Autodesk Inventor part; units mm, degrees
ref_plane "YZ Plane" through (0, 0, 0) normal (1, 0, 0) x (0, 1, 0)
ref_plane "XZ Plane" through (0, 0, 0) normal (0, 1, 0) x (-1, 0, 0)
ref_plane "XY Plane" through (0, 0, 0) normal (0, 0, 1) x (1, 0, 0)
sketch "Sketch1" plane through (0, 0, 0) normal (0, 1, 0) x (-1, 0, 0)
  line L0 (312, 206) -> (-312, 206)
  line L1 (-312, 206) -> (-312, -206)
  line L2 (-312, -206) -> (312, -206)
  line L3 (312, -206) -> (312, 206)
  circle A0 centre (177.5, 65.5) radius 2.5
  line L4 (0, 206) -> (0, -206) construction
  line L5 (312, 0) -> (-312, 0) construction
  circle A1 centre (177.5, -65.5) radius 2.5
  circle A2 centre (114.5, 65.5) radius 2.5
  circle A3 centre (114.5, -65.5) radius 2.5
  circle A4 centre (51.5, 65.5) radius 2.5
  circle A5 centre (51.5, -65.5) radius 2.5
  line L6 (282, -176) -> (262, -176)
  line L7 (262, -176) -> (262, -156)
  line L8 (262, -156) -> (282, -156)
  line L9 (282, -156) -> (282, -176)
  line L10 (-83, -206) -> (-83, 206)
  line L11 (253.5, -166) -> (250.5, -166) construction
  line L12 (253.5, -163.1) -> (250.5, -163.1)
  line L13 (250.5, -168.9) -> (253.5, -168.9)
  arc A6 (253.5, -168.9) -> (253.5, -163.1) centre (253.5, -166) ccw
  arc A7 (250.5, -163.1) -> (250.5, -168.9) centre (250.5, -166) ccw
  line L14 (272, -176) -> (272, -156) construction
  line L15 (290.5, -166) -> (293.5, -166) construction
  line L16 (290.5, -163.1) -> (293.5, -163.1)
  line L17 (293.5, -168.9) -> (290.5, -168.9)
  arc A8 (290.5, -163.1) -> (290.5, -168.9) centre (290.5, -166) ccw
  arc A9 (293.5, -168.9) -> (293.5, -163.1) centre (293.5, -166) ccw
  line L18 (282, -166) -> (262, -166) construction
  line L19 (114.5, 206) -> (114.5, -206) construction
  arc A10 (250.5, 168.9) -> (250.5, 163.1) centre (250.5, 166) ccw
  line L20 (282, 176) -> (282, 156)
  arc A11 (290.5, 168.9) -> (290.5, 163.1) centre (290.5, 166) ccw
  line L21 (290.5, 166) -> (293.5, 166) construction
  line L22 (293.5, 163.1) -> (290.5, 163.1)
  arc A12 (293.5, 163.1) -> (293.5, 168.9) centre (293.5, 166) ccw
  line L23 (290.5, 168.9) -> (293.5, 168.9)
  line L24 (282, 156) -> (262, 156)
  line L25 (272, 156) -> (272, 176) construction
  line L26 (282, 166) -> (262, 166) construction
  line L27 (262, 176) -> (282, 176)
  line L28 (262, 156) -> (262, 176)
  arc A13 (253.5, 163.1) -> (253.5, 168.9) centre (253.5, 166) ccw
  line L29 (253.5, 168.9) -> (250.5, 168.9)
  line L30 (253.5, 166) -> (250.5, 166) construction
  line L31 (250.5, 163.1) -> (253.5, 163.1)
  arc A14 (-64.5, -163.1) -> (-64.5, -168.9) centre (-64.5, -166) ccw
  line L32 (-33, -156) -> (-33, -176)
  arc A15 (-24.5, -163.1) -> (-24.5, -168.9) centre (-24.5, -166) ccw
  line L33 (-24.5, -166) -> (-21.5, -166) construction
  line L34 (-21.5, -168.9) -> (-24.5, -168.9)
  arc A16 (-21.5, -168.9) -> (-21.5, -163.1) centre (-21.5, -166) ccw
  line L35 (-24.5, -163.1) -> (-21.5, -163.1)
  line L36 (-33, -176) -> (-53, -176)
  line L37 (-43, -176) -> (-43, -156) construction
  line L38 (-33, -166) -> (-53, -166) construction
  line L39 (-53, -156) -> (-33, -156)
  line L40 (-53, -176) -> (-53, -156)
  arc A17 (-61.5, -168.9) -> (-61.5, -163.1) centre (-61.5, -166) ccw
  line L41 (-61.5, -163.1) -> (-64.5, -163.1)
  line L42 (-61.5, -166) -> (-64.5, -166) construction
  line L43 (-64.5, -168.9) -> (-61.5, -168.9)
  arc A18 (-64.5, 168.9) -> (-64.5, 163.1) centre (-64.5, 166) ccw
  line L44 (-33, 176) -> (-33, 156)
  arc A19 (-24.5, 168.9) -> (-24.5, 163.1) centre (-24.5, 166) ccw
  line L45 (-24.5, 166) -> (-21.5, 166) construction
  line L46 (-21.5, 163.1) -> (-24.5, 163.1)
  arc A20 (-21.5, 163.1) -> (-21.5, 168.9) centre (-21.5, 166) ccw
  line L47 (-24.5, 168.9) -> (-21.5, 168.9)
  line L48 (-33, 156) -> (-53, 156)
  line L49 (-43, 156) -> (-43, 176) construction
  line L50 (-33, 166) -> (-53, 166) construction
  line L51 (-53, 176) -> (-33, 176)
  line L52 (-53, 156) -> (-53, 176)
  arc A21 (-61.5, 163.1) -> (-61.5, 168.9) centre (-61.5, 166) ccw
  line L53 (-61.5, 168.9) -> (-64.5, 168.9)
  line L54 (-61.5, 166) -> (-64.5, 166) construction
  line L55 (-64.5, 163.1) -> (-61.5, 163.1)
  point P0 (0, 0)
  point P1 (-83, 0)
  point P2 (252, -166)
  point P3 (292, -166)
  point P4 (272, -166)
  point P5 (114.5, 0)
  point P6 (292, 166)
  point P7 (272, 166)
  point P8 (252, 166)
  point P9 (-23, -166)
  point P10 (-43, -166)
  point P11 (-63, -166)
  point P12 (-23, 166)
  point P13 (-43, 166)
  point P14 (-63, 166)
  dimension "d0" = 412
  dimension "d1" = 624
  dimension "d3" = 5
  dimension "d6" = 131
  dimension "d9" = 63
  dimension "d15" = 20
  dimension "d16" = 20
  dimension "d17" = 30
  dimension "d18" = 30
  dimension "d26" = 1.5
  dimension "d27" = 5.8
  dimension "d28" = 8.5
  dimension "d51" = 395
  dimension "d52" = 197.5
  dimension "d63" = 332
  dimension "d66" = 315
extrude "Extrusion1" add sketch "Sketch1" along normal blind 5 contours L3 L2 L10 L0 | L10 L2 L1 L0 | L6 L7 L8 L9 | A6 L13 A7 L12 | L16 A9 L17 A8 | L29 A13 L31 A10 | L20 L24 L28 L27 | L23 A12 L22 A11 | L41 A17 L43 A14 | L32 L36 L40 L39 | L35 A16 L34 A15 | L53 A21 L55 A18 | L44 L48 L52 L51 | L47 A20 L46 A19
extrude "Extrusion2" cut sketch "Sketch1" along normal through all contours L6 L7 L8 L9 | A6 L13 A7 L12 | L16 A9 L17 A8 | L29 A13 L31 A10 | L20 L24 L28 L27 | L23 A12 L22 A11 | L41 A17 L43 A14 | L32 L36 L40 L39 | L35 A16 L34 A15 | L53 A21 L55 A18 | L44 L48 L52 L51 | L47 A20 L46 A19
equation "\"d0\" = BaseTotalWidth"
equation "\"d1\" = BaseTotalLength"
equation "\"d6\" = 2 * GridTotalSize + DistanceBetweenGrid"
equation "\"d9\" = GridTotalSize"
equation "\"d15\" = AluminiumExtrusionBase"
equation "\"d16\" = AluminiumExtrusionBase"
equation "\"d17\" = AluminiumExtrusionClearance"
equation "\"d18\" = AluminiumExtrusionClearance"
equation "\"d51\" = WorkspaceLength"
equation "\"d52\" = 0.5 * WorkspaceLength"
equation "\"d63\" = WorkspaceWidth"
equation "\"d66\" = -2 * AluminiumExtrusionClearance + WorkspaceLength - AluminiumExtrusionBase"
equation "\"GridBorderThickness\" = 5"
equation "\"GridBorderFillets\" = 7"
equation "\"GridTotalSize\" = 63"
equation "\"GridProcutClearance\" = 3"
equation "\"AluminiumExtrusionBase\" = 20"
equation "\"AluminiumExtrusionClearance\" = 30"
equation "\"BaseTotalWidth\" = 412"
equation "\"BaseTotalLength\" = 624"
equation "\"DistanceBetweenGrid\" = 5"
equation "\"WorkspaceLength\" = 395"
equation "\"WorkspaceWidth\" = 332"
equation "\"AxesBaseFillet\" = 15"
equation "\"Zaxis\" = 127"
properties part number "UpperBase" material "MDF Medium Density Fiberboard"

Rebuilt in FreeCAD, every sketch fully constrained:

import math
import FreeCAD as App
import Part
import Sketcher

V = App.Vector


def add_polygon(sketch, points):
    """Adds a closed chain of lines whose ends are joined by coincident constraints."""
    first, n = sketch.GeometryCount, len(points)
    for a, b in zip(points, points[1:] + points[:1]):
        sketch.addGeometry(Part.LineSegment(App.Vector(*a, 0), App.Vector(*b, 0)), False)
    for i in range(n):
        sketch.addConstraint(Sketcher.Constraint("Coincident", first + i, 2, first + (i + 1) % n, 1))

doc = App.newDocument("Part")
params = doc.addObject("Spreadsheet::Sheet", "Params")
for row, (alias, value) in enumerate([
    ("sketch1_diameter", "5 mm"),
    ("sketch1_width", "624 mm"),
    ("sketch1_height", "412 mm"),
    ("pad1_length", "5 mm"),
    ("sketch2_radius", "2.9 mm"),
    ("sketch2_width", "20 mm"),
    ("sketch2_width2", "3 mm"),
], start=1):
    params.set(f"A{row}", alias)
    params.set(f"B{row}", "=" + value)
    params.setAlias(f"B{row}", alias)

body = doc.addObject("PartDesign::Body", "Body")

# Sketch on XZ plane
sketch1 = body.newObject("Sketcher::SketchObject", "Sketch")
sketch1.AttachmentSupport = (doc.getObject("XZ_Plane"), [""])
sketch1.MapMode = "FlatFace"
add_polygon(sketch1, [(-312, -206), (-312, 206), (312, 206), (312, -206)])  # lines 0-3
sketch1.addGeometry(Part.Circle(V(-51.5, -65.5, 0), V(0, 0, 1), 2.5), False)  # 4
sketch1.addGeometry(Part.Circle(V(-114.5, -65.5, 0), V(0, 0, 1), 2.5), False)  # 5
sketch1.addGeometry(Part.Circle(V(-177.5, -65.5, 0), V(0, 0, 1), 2.5), False)  # 6
sketch1.addGeometry(Part.Circle(V(-51.5, 65.5, 0), V(0, 0, 1), 2.5), False)  # 7
sketch1.addGeometry(Part.Circle(V(-114.5, 65.5, 0), V(0, 0, 1), 2.5), False)  # 8
sketch1.addGeometry(Part.Circle(V(-177.5, 65.5, 0), V(0, 0, 1), 2.5), False)  # 9
sketch1.addConstraint(Sketcher.Constraint("Vertical", 0))
sketch1.addConstraint(Sketcher.Constraint("Horizontal", 1))
sketch1.addConstraint(Sketcher.Constraint("Vertical", 2))
sketch1.addConstraint(Sketcher.Constraint("Horizontal", 3))
sketch1.addConstraint(Sketcher.Constraint("Equal", 4, 5))
sketch1.addConstraint(Sketcher.Constraint("Equal", 5, 6))
sketch1.addConstraint(Sketcher.Constraint("Equal", 6, 7))
sketch1.addConstraint(Sketcher.Constraint("Equal", 7, 8))
sketch1.addConstraint(Sketcher.Constraint("Equal", 8, 9))
sketch1.addConstraint(Sketcher.Constraint("Symmetric", 0, 2, 2, 2, -1, 1))
sketch1.addConstraint(Sketcher.Constraint("Symmetric", 4, 3, 7, 3, -1))
sketch1.addConstraint(Sketcher.Constraint("Symmetric", 5, 3, 8, 3, -1))
sketch1.addConstraint(Sketcher.Constraint("Symmetric", 6, 3, 9, 3, -1))
sketch1.addConstraint(Sketcher.Constraint("Horizontal", 4, 3, 5, 3))
sketch1.addConstraint(Sketcher.Constraint("Horizontal", 5, 3, 6, 3))
sketch1.addConstraint(Sketcher.Constraint("Diameter", 4, 5.0))
sketch1.addConstraint(Sketcher.Constraint("DistanceX", 1, 1, 1, 2, 624.0))
sketch1.addConstraint(Sketcher.Constraint("DistanceY", 0, 1, 0, 2, 412.0))
sketch1.addConstraint(Sketcher.Constraint("DistanceX", 5, 3, 4, 3, 63.0))
sketch1.addConstraint(Sketcher.Constraint("DistanceX", 6, 3, 5, 3, 63.0))
sketch1.addConstraint(Sketcher.Constraint("DistanceY", 4, 3, 7, 3, 131.0))
sketch1.addConstraint(Sketcher.Constraint("DistanceX", 0, 2, 8, 3, 197.5))
sketch1.setExpression("Constraints[19]", "Params.sketch1_diameter")
sketch1.setExpression("Constraints[20]", "Params.sketch1_width")
sketch1.setExpression("Constraints[21]", "Params.sketch1_height")
pad1 = body.newObject("PartDesign::Pad", "Pad")
pad1.Profile = sketch1
pad1.setExpression("Length", "Params.pad1_length")
pad1.Reversed = True

# Sketch on XZ plane
sketch2 = body.newObject("Sketcher::SketchObject", "Sketch001")
sketch2.AttachmentSupport = (doc.getObject("XZ_Plane"), [""])
sketch2.MapMode = "FlatFace"
add_polygon(sketch2, [(-262, -176), (-282, -176), (-282, -156), (-262, -156)])  # lines 0-3
sketch2.addGeometry(Part.ArcOfCircle(Part.Circle(V(-253.5, -166, 0), V(0, 0, 1), 2.9), math.radians(90), math.radians(270)), False)  # 4
sketch2.addGeometry(Part.LineSegment(V(-253.5, -163.1, 0), V(-250.5, -163.1, 0)), False)  # 5
sketch2.addGeometry(Part.ArcOfCircle(Part.Circle(V(-250.5, -166, 0), V(0, 0, 1), 2.9), math.radians(-90), math.radians(90)), False)  # 6
sketch2.addGeometry(Part.LineSegment(V(-250.5, -168.9, 0), V(-253.5, -168.9, 0)), False)  # 7
sketch2.addGeometry(Part.LineSegment(V(-293.5, -163.1, 0), V(-290.5, -163.1, 0)), False)  # 8
sketch2.addGeometry(Part.ArcOfCircle(Part.Circle(V(-290.5, -166, 0), V(0, 0, 1), 2.9), math.radians(-90), math.radians(90)), False)  # 9
sketch2.addGeometry(Part.LineSegment(V(-290.5, -168.9, 0), V(-293.5, -168.9, 0)), False)  # 10
sketch2.addGeometry(Part.ArcOfCircle(Part.Circle(V(-293.5, -166, 0), V(0, 0, 1), 2.9), math.radians(90), math.radians(270)), False)  # 11
sketch2.addGeometry(Part.LineSegment(V(-253.5, 168.9, 0), V(-250.5, 168.9, 0)), False)  # 12
sketch2.addGeometry(Part.ArcOfCircle(Part.Circle(V(-250.5, 166, 0), V(0, 0, 1), 2.9), math.radians(-90), math.radians(90)), False)  # 13
sketch2.addGeometry(Part.LineSegment(V(-250.5, 163.1, 0), V(-253.5, 163.1, 0)), False)  # 14
sketch2.addGeometry(Part.ArcOfCircle(Part.Circle(V(-253.5, 166, 0), V(0, 0, 1), 2.9), math.radians(90), math.radians(270)), False)  # 15
add_polygon(sketch2, [(-282, 156), (-282, 176), (-262, 176), (-262, 156)])  # lines 16-19
sketch2.addGeometry(Part.LineSegment(V(-293.5, 168.9, 0), V(-290.5, 168.9, 0)), False)  # 20
sketch2.addGeometry(Part.ArcOfCircle(Part.Circle(V(-290.5, 166, 0), V(0, 0, 1), 2.9), math.radians(-90), math.radians(90)), False)  # 21
sketch2.addGeometry(Part.LineSegment(V(-290.5, 163.1, 0), V(-293.5, 163.1, 0)), False)  # 22
sketch2.addGeometry(Part.ArcOfCircle(Part.Circle(V(-293.5, 166, 0), V(0, 0, 1), 2.9), math.radians(90), math.radians(270)), False)  # 23
sketch2.addGeometry(Part.LineSegment(V(61.5, -163.1, 0), V(64.5, -163.1, 0)), False)  # 24
sketch2.addGeometry(Part.ArcOfCircle(Part.Circle(V(64.5, -166, 0), V(0, 0, 1), 2.9), math.radians(-90), math.radians(90)), False)  # 25
sketch2.addGeometry(Part.LineSegment(V(64.5, -168.9, 0), V(61.5, -168.9, 0)), False)  # 26
sketch2.addGeometry(Part.ArcOfCircle(Part.Circle(V(61.5, -166, 0), V(0, 0, 1), 2.9), math.radians(90), math.radians(270)), False)  # 27
add_polygon(sketch2, [(33, -176), (33, -156), (53, -156), (53, -176)])  # lines 28-31
sketch2.addGeometry(Part.LineSegment(V(21.5, -163.1, 0), V(24.5, -163.1, 0)), False)  # 32
sketch2.addGeometry(Part.ArcOfCircle(Part.Circle(V(24.5, -166, 0), V(0, 0, 1), 2.9), math.radians(-90), math.radians(90)), False)  # 33
sketch2.addGeometry(Part.LineSegment(V(24.5, -168.9, 0), V(21.5, -168.9, 0)), False)  # 34
sketch2.addGeometry(Part.ArcOfCircle(Part.Circle(V(21.5, -166, 0), V(0, 0, 1), 2.9), math.radians(90), math.radians(270)), False)  # 35
sketch2.addGeometry(Part.LineSegment(V(61.5, 168.9, 0), V(64.5, 168.9, 0)), False)  # 36
sketch2.addGeometry(Part.ArcOfCircle(Part.Circle(V(64.5, 166, 0), V(0, 0, 1), 2.9), math.radians(-90), math.radians(90)), False)  # 37
sketch2.addGeometry(Part.LineSegment(V(64.5, 163.1, 0), V(61.5, 163.1, 0)), False)  # 38
sketch2.addGeometry(Part.ArcOfCircle(Part.Circle(V(61.5, 166, 0), V(0, 0, 1), 2.9), math.radians(90), math.radians(270)), False)  # 39
add_polygon(sketch2, [(33, 156), (33, 176), (53, 176), (53, 156)])  # lines 40-43
sketch2.addGeometry(Part.LineSegment(V(21.5, 168.9, 0), V(24.5, 168.9, 0)), False)  # 44
sketch2.addGeometry(Part.ArcOfCircle(Part.Circle(V(24.5, 166, 0), V(0, 0, 1), 2.9), math.radians(-90), math.radians(90)), False)  # 45
sketch2.addGeometry(Part.LineSegment(V(24.5, 163.1, 0), V(21.5, 163.1, 0)), False)  # 46
sketch2.addGeometry(Part.ArcOfCircle(Part.Circle(V(21.5, 166, 0), V(0, 0, 1), 2.9), math.radians(90), math.radians(270)), False)  # 47
sketch2.addConstraint(Sketcher.Constraint("Tangent", 4, 1, 5, 1))
sketch2.addConstraint(Sketcher.Constraint("Tangent", 5, 2, 6, 2))
sketch2.addConstraint(Sketcher.Constraint("Tangent", 6, 1, 7, 1))
sketch2.addConstraint(Sketcher.Constraint("Tangent", 7, 2, 4, 2))
sketch2.addConstraint(Sketcher.Constraint("Tangent", 8, 2, 9, 2))
sketch2.addConstraint(Sketcher.Constraint("Tangent", 9, 1, 10, 1))
sketch2.addConstraint(Sketcher.Constraint("Tangent", 10, 2, 11, 2))
sketch2.addConstraint(Sketcher.Constraint("Tangent", 11, 1, 8, 1))
sketch2.addConstraint(Sketcher.Constraint("Tangent", 12, 2, 13, 2))
sketch2.addConstraint(Sketcher.Constraint("Tangent", 13, 1, 14, 1))
sketch2.addConstraint(Sketcher.Constraint("Tangent", 14, 2, 15, 2))
sketch2.addConstraint(Sketcher.Constraint("Tangent", 15, 1, 12, 1))
sketch2.addConstraint(Sketcher.Constraint("Tangent", 20, 2, 21, 2))
sketch2.addConstraint(Sketcher.Constraint("Tangent", 21, 1, 22, 1))
sketch2.addConstraint(Sketcher.Constraint("Tangent", 22, 2, 23, 2))
sketch2.addConstraint(Sketcher.Constraint("Tangent", 23, 1, 20, 1))
sketch2.addConstraint(Sketcher.Constraint("Tangent", 24, 2, 25, 2))
sketch2.addConstraint(Sketcher.Constraint("Tangent", 25, 1, 26, 1))
sketch2.addConstraint(Sketcher.Constraint("Tangent", 26, 2, 27, 2))
sketch2.addConstraint(Sketcher.Constraint("Tangent", 27, 1, 24, 1))
sketch2.addConstraint(Sketcher.Constraint("Tangent", 32, 2, 33, 2))
sketch2.addConstraint(Sketcher.Constraint("Tangent", 33, 1, 34, 1))
sketch2.addConstraint(Sketcher.Constraint("Tangent", 34, 2, 35, 2))
sketch2.addConstraint(Sketcher.Constraint("Tangent", 35, 1, 32, 1))
sketch2.addConstraint(Sketcher.Constraint("Tangent", 36, 2, 37, 2))
sketch2.addConstraint(Sketcher.Constraint("Tangent", 37, 1, 38, 1))
sketch2.addConstraint(Sketcher.Constraint("Tangent", 38, 2, 39, 2))
sketch2.addConstraint(Sketcher.Constraint("Tangent", 39, 1, 36, 1))
sketch2.addConstraint(Sketcher.Constraint("Tangent", 44, 2, 45, 2))
sketch2.addConstraint(Sketcher.Constraint("Tangent", 45, 1, 46, 1))
sketch2.addConstraint(Sketcher.Constraint("Tangent", 46, 2, 47, 2))
sketch2.addConstraint(Sketcher.Constraint("Tangent", 47, 1, 44, 1))
sketch2.addConstraint(Sketcher.Constraint("Horizontal", 0))
sketch2.addConstraint(Sketcher.Constraint("Vertical", 1))
sketch2.addConstraint(Sketcher.Constraint("Horizontal", 2))
sketch2.addConstraint(Sketcher.Constraint("Vertical", 3))
sketch2.addConstraint(Sketcher.Constraint("Horizontal", 5))
sketch2.addConstraint(Sketcher.Constraint("Horizontal", 7))
sketch2.addConstraint(Sketcher.Constraint("Horizontal", 8))
sketch2.addConstraint(Sketcher.Constraint("Horizontal", 10))
sketch2.addConstraint(Sketcher.Constraint("Horizontal", 12))
sketch2.addConstraint(Sketcher.Constraint("Horizontal", 14))
sketch2.addConstraint(Sketcher.Constraint("Vertical", 16))
sketch2.addConstraint(Sketcher.Constraint("Horizontal", 17))
sketch2.addConstraint(Sketcher.Constraint("Vertical", 18))
sketch2.addConstraint(Sketcher.Constraint("Horizontal", 19))
sketch2.addConstraint(Sketcher.Constraint("Horizontal", 20))
sketch2.addConstraint(Sketcher.Constraint("Horizontal", 22))
sketch2.addConstraint(Sketcher.Constraint("Horizontal", 24))
sketch2.addConstraint(Sketcher.Constraint("Horizontal", 26))
sketch2.addConstraint(Sketcher.Constraint("Vertical", 28))
sketch2.addConstraint(Sketcher.Constraint("Horizontal", 29))
sketch2.addConstraint(Sketcher.Constraint("Vertical", 30))
sketch2.addConstraint(Sketcher.Constraint("Horizontal", 31))
sketch2.addConstraint(Sketcher.Constraint("Horizontal", 32))
sketch2.addConstraint(Sketcher.Constraint("Horizontal", 34))
sketch2.addConstraint(Sketcher.Constraint("Horizontal", 36))
sketch2.addConstraint(Sketcher.Constraint("Horizontal", 38))
sketch2.addConstraint(Sketcher.Constraint("Vertical", 40))
sketch2.addConstraint(Sketcher.Constraint("Horizontal", 41))
sketch2.addConstraint(Sketcher.Constraint("Vertical", 42))
sketch2.addConstraint(Sketcher.Constraint("Horizontal", 43))
sketch2.addConstraint(Sketcher.Constraint("Horizontal", 44))
sketch2.addConstraint(Sketcher.Constraint("Horizontal", 46))
sketch2.addConstraint(Sketcher.Constraint("Equal", 6, 9))
sketch2.addConstraint(Sketcher.Constraint("Equal", 11, 13))
sketch2.addConstraint(Sketcher.Constraint("Equal", 15, 21))
sketch2.addConstraint(Sketcher.Constraint("Equal", 23, 25))
sketch2.addConstraint(Sketcher.Constraint("Equal", 27, 33))
sketch2.addConstraint(Sketcher.Constraint("Equal", 35, 37))
sketch2.addConstraint(Sketcher.Constraint("Equal", 39, 45))
sketch2.addConstraint(Sketcher.Constraint("Symmetric", 6, 3, 13, 3, -1))
sketch2.addConstraint(Sketcher.Constraint("Symmetric", 9, 3, 21, 3, -1))
sketch2.addConstraint(Sketcher.Constraint("Symmetric", 25, 3, 37, 3, -1))
sketch2.addConstraint(Sketcher.Constraint("Symmetric", 33, 3, 45, 3, -1))
sketch2.addConstraint(Sketcher.Constraint("Symmetric", 0, 2, 16, 2, -1))
sketch2.addConstraint(Sketcher.Constraint("Symmetric", 2, 2, 18, 2, -1))
sketch2.addConstraint(Sketcher.Constraint("Symmetric", 31, 2, 40, 2, -1))
sketch2.addConstraint(Sketcher.Constraint("Symmetric", 29, 2, 42, 2, -1))
sketch2.addConstraint(Sketcher.Constraint("Horizontal", 6, 3, 9, 3))
sketch2.addConstraint(Sketcher.Constraint("Horizontal", 11, 3, 25, 3))
sketch2.addConstraint(Sketcher.Constraint("Horizontal", 27, 3, 33, 3))
sketch2.addConstraint(Sketcher.Constraint("Horizontal", 2, 2, 28, 2))
sketch2.addConstraint(Sketcher.Constraint("Horizontal", 3, 2, 30, 2))
sketch2.addConstraint(Sketcher.Constraint("Vertical", 4, 3, 15, 3))
sketch2.addConstraint(Sketcher.Constraint("Vertical", 11, 3, 23, 3))
sketch2.addConstraint(Sketcher.Constraint("Vertical", 27, 3, 39, 3))
sketch2.addConstraint(Sketcher.Constraint("Vertical", 35, 3, 47, 3))
sketch2.addConstraint(Sketcher.Constraint("Equal", 7, 8))
sketch2.addConstraint(Sketcher.Constraint("Equal", 22, 24))
sketch2.addConstraint(Sketcher.Constraint("Equal", 19, 29))
sketch2.addConstraint(Sketcher.Constraint("Equal", 26, 32))
sketch2.addConstraint(Sketcher.Constraint("Equal", 43, 1))
sketch2.addConstraint(Sketcher.Constraint("Radius", 4, 2.9))
sketch2.addConstraint(Sketcher.Constraint("DistanceX", 0, 2, 0, 1, 20.0))
sketch2.addConstraint(Sketcher.Constraint("DistanceX", 5, 1, 5, 2, 3.0))
sketch2.addConstraint(Sketcher.Constraint("DistanceY", 4, 3, -1, 1, 166.0))
sketch2.addConstraint(Sketcher.Constraint("DistanceX", 0, 2, -1, 1, 282.0))
sketch2.addConstraint(Sketcher.Constraint("DistanceY", 0, 2, -1, 1, 176.0))
sketch2.addConstraint(Sketcher.Constraint("DistanceX", -1, 1, 28, 2, 33.0))
sketch2.addConstraint(Sketcher.Constraint("DistanceX", 4, 3, -1, 1, 253.5))
sketch2.addConstraint(Sketcher.Constraint("DistanceX", 9, 3, -1, 1, 290.5))
sketch2.addConstraint(Sketcher.Constraint("DistanceX", -1, 1, 25, 3, 64.5))
sketch2.addConstraint(Sketcher.Constraint("DistanceX", -1, 1, 33, 3, 24.5))
sketch2.setExpression("Constraints[109]", "Params.sketch2_radius")
sketch2.setExpression("Constraints[110]", "Params.sketch2_width")
sketch2.setExpression("Constraints[111]", "Params.sketch2_width2")
pocket1 = body.newObject("PartDesign::Pocket", "Pocket")
pocket1.Profile = sketch2
pocket1.Type = "ThroughAll"

doc.recompute()
